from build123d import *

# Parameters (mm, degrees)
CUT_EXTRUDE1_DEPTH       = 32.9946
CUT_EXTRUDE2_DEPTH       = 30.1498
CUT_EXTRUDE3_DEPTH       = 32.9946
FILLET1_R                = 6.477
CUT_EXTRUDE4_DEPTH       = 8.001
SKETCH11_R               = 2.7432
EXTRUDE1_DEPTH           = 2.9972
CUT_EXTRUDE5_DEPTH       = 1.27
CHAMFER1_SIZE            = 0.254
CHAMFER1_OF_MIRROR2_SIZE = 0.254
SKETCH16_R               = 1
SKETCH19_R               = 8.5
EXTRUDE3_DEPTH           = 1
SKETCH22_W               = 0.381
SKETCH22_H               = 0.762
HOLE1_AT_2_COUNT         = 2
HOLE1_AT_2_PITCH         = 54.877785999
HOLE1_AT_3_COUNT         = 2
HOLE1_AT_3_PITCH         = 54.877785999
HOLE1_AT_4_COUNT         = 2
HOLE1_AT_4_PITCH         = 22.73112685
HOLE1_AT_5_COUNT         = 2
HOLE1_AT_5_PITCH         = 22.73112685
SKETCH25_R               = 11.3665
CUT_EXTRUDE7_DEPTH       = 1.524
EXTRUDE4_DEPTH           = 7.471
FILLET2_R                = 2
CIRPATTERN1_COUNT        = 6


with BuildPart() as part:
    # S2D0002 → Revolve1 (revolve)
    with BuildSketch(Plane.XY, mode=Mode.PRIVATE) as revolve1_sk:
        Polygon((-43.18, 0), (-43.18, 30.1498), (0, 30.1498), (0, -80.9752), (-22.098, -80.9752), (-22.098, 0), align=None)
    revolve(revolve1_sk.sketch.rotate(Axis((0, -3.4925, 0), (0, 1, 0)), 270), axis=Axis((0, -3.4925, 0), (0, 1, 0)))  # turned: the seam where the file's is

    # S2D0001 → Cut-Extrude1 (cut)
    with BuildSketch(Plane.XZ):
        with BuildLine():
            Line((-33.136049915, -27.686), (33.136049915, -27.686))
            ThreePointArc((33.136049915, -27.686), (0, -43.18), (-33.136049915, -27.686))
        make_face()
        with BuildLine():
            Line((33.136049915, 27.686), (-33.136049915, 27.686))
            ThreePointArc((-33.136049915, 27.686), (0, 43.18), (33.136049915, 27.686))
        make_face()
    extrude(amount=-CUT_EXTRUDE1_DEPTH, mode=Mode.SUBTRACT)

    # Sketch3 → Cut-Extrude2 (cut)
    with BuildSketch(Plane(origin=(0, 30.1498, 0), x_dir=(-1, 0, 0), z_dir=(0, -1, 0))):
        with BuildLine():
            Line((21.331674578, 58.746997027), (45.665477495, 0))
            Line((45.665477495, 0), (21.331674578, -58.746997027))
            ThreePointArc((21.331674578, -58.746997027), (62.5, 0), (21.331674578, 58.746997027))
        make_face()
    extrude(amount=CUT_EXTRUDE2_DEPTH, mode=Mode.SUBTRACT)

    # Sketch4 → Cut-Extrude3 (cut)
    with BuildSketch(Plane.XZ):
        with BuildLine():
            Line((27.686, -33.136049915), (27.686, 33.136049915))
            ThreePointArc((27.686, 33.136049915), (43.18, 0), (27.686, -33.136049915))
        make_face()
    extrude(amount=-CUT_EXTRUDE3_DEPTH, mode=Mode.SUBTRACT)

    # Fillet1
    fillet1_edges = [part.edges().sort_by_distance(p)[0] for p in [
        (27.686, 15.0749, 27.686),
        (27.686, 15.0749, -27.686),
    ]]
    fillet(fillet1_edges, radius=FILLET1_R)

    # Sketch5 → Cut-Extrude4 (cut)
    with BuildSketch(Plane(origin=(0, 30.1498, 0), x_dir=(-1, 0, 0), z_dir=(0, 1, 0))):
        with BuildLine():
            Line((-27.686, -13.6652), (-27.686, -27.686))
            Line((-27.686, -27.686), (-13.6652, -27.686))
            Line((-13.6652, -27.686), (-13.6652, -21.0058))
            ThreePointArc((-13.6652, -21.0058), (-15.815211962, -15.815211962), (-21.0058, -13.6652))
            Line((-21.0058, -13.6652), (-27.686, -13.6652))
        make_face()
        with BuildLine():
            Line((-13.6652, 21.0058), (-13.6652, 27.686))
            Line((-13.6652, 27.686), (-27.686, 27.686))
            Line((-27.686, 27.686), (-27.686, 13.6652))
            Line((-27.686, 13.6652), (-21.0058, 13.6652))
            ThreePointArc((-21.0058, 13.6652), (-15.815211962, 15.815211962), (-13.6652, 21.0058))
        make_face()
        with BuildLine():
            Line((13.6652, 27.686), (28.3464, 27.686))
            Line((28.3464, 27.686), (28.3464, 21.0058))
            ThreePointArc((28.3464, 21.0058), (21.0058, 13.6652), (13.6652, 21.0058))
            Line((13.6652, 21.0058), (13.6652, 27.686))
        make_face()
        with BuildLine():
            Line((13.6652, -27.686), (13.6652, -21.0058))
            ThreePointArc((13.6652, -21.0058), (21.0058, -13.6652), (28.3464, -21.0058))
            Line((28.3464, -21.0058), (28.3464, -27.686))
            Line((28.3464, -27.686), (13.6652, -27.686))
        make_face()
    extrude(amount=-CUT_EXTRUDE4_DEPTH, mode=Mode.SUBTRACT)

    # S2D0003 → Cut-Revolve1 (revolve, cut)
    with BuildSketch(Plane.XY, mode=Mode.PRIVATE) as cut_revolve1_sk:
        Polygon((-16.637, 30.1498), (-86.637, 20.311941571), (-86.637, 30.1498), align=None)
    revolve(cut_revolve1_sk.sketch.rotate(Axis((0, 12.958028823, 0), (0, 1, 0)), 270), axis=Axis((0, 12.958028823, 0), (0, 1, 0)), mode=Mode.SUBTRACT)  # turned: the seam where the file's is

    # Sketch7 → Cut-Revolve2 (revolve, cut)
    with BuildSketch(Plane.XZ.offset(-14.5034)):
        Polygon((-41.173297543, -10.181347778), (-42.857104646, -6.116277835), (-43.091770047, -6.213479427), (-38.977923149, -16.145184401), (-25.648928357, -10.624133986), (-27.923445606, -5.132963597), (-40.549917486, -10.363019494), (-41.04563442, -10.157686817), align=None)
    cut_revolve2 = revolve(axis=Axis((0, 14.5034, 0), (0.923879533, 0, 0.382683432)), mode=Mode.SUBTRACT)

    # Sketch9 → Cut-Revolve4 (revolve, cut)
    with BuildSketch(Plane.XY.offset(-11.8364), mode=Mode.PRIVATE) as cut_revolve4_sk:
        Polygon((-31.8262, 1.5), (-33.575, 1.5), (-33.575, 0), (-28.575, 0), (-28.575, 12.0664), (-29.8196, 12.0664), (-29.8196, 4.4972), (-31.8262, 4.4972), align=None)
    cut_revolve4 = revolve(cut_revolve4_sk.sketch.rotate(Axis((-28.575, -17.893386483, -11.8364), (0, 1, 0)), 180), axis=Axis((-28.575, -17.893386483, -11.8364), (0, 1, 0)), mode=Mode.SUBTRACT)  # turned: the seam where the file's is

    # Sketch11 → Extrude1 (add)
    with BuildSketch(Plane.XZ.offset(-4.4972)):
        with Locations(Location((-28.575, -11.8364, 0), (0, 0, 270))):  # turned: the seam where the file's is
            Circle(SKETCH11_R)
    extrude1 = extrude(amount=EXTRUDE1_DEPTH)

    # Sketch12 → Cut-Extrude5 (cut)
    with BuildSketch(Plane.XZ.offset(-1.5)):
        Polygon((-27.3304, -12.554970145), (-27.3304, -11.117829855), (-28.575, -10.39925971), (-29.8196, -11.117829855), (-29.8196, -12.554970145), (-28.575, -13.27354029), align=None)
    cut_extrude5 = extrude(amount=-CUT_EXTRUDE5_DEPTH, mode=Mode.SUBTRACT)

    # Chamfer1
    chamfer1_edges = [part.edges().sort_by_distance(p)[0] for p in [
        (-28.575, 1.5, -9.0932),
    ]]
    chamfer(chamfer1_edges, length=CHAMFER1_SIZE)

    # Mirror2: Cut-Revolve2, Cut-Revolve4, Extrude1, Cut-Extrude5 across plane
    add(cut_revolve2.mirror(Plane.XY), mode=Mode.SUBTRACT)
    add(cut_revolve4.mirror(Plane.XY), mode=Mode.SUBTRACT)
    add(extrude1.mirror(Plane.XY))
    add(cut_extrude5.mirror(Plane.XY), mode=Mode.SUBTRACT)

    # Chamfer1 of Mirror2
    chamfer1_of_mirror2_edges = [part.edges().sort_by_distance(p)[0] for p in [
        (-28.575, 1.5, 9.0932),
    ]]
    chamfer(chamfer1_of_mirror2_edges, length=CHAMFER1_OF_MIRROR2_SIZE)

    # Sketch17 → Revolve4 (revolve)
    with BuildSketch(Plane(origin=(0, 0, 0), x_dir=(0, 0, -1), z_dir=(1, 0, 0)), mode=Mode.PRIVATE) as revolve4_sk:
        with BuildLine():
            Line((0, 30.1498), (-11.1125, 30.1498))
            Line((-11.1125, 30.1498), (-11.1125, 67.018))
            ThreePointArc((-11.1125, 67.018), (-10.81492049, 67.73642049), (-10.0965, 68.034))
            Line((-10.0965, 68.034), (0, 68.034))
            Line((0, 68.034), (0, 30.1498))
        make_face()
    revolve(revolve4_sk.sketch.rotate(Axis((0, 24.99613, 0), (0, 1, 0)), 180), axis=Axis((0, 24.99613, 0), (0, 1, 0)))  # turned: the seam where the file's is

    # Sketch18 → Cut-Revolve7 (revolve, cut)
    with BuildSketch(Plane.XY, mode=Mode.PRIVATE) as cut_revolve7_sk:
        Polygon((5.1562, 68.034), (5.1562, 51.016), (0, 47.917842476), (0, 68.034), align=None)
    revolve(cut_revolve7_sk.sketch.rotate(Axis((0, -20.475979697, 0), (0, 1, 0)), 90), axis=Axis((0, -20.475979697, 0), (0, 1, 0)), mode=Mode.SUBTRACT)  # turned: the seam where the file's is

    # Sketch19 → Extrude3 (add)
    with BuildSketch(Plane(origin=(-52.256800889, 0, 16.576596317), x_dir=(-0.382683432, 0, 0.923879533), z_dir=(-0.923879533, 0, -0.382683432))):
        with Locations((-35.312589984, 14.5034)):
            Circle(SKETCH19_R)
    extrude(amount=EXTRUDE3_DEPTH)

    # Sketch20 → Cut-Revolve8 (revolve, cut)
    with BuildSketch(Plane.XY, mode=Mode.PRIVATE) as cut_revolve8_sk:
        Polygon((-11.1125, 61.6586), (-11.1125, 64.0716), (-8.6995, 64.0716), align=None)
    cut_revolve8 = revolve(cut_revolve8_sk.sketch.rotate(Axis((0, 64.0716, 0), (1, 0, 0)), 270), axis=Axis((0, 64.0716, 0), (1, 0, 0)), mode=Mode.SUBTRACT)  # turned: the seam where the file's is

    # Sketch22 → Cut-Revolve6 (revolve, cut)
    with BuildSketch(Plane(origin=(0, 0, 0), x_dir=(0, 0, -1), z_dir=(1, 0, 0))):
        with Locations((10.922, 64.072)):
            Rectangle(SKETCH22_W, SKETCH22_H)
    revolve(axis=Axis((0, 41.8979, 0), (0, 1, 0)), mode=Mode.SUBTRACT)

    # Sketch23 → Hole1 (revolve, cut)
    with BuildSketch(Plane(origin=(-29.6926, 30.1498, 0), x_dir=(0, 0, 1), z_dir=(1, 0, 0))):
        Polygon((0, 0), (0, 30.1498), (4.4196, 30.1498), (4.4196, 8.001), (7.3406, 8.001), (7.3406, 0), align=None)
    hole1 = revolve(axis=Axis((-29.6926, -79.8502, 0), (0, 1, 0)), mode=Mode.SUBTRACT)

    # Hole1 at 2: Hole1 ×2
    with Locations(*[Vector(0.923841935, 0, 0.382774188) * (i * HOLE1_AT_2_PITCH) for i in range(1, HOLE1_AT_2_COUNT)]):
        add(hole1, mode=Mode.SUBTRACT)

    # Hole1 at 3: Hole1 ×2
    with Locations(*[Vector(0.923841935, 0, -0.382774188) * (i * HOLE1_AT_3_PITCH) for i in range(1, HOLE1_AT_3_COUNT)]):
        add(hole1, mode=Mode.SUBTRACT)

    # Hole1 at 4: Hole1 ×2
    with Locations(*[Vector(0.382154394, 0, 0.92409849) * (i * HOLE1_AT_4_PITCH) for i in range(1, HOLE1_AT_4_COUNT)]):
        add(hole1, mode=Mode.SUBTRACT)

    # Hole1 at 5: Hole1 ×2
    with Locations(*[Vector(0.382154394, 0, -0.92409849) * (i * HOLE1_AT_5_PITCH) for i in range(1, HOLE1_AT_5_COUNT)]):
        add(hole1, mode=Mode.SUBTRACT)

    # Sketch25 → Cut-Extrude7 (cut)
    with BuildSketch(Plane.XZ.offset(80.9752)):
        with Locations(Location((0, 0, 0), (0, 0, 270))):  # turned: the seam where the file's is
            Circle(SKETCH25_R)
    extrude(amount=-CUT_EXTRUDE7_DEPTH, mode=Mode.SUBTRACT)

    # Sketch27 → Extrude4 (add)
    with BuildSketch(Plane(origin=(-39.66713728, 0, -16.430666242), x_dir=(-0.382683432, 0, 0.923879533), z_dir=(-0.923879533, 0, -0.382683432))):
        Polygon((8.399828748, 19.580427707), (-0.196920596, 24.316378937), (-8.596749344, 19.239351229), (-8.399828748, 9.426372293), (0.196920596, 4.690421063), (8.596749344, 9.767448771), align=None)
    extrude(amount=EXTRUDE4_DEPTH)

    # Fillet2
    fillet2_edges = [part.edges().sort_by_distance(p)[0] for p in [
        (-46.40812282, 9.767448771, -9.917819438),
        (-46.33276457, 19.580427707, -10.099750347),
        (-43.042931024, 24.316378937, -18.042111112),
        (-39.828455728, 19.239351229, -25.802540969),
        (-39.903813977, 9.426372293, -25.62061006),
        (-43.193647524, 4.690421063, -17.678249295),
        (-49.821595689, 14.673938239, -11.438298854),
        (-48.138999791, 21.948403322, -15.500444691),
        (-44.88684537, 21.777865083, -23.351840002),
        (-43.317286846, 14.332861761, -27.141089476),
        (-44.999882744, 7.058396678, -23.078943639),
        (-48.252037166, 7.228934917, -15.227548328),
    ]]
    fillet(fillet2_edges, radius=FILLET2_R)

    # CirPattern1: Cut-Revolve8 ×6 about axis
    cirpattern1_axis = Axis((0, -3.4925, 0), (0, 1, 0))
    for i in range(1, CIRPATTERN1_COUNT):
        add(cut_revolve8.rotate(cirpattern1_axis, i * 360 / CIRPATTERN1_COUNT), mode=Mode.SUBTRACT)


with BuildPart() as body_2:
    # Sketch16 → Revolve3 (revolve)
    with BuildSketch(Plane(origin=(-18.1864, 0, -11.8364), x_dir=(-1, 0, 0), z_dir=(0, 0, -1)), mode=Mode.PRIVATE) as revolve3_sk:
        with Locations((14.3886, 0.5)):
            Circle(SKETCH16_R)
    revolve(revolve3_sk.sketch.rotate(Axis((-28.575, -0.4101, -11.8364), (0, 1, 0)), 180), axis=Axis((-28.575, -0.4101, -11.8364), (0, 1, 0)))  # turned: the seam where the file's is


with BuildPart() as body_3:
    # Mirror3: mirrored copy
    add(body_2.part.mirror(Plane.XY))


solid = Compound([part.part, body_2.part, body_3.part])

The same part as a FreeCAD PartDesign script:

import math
import FreeCAD as App
import Part
import Sketcher
Q = App.Units.Quantity


def edges_at(feature, points):
    """Names of the edges that pass closest to the given points."""
    edges = feature.Shape.Edges
    near = lambda p: min(range(len(edges)), key=lambda i: edges[i].distToShape(Part.Vertex(*p))[0])
    return sorted({f"Edge{near(p) + 1}" for p in points})

doc = App.newDocument("Part")
body = doc.addObject("PartDesign::Body", "Body")

sketch1 = body.newObject("Sketcher::SketchObject", "Sketch")
sketch1.AttachmentSupport = (doc.getObject("XY_Plane"), [""])
sketch1.MapMode = "FlatFace"
sketch1.addGeometry([
    Part.LineSegment(App.Vector(-43, 30, 0), App.Vector(-43, 0, 0)),
    Part.LineSegment(App.Vector(-43, 0, 0), App.Vector(-22, 0, 0)),
    Part.LineSegment(App.Vector(-22, 0, 0), App.Vector(-22, -81, 0)),
    Part.LineSegment(App.Vector(-22, -81, 0), App.Vector(0, -81, 0)),
    Part.LineSegment(App.Vector(0, -81, 0), App.Vector(0, 30, 0)),
    Part.LineSegment(App.Vector(0, 30, 0), App.Vector(-43, 30, 0)),
], False)
sketch1.addConstraint([
    Sketcher.Constraint("Coincident", 0, 2, 1, 1),
    Sketcher.Constraint("Coincident", 1, 2, 2, 1),
    Sketcher.Constraint("Coincident", 2, 2, 3, 1),
    Sketcher.Constraint("Coincident", 3, 2, 4, 1),
    Sketcher.Constraint("Coincident", 4, 2, 5, 1),
    Sketcher.Constraint("Coincident", 5, 2, 0, 1),
    Sketcher.Constraint("Vertical", 0),
    Sketcher.Constraint("Horizontal", 1),
    Sketcher.Constraint("Vertical", 2),
    Sketcher.Constraint("Horizontal", 3),
    Sketcher.Constraint("Vertical", 4),
    Sketcher.Constraint("Horizontal", 5),
    Sketcher.Constraint("PointOnObject", 0, 2, -1),
    Sketcher.Constraint("PointOnObject", 3, 2, -2),
    Sketcher.Constraint("DistanceX", 5, 2, 5, 1, Q("1.7 in")),
    Sketcher.Constraint("DistanceX", 1, 1, 1, 2, Q("0.83 in")),
    Sketcher.Constraint("DistanceY", 0, 2, 0, 1, Q("1.187 in")),
    Sketcher.Constraint("DistanceY", 2, 2, 2, 1, Q("3.188 in")),
])
revolution = body.newObject("PartDesign::Revolution", "Revolution")
revolution.Profile = sketch1
revolution.ReferenceAxis = (sketch1, ["V_Axis"])
revolution.Angle = 360

sketch2 = body.newObject("Sketcher::SketchObject", "Sketch001")
sketch2.AttachmentSupport = (doc.getObject("XZ_Plane"), [""])
sketch2.MapMode = "FlatFace"
sketch2.addGeometry([
    Part.LineSegment(App.Vector(33, -28, 0), App.Vector(-33, -28, 0)),
    Part.ArcOfCircle(Part.Circle(App.Vector(0, 0, 0), App.Vector(0, 0, 1), 43), math.radians(-140), math.radians(-40)),
    Part.LineSegment(App.Vector(-33, 28, 0), App.Vector(33, 28, 0)),
    Part.ArcOfCircle(Part.Circle(App.Vector(0, 0, 0), App.Vector(0, 0, 1), 43), math.radians(40), math.radians(140)),
], False)
sketch2.addConstraint([
    Sketcher.Constraint("Coincident", 0, 1, 1, 2),
    Sketcher.Constraint("Coincident", 1, 1, 0, 2),
    Sketcher.Constraint("Coincident", 2, 1, 3, 2),
    Sketcher.Constraint("Coincident", 3, 1, 2, 2),
    Sketcher.Constraint("Horizontal", 0),
    Sketcher.Constraint("Horizontal", 2),
    Sketcher.Constraint("Coincident", 1, 3, -1, 1),
    Sketcher.Constraint("Coincident", 3, 3, -1, 1),
    Sketcher.Constraint("Equal", 1, 3),
    Sketcher.Constraint("Vertical", 1, 1, 2, 1),
    Sketcher.Constraint("Radius", 1, Q("1.7 in")),
    Sketcher.Constraint("DistanceY", 0, 1, -1, 1, Q("1.09 in")),
])
pocket1 = body.newObject("PartDesign::Pocket", "Pocket")
pocket1.Profile = sketch2
pocket1.Length = Q("1.299 in")

sketch3 = body.newObject("Sketcher::SketchObject", "Sketch002")
sketch3.AttachmentSupport = (doc.getObject("XZ_Plane"), [""])
sketch3.MapMode = "FlatFace"
sketch3.AttachmentOffset = App.Placement(App.Vector(0, 0, -1.187 * 25.4), App.Rotation())
sketch3.addGeometry([
    Part.LineSegment(App.Vector(-21, -59, 0), App.Vector(-46, 0, 0)),
    Part.LineSegment(App.Vector(-46, 0, 0), App.Vector(-21, 59, 0)),
    Part.ArcOfCircle(Part.Circle(App.Vector(0, 0, 0), App.Vector(0, 0, 1), 62), math.radians(110), math.radians(250)),
], False)
sketch3.addConstraint([
    Sketcher.Constraint("Coincident", 0, 2, 1, 1),
    Sketcher.Constraint("Coincident", 1, 2, 2, 1),
    Sketcher.Constraint("Coincident", 2, 2, 0, 1),
    Sketcher.Constraint("Coincident", 2, 3, -1, 1),
    Sketcher.Constraint("PointOnObject", 0, 2, -1),
    Sketcher.Constraint("Vertical", 1, 2, 2, 2),
    Sketcher.Constraint("Angle", 0, Q("112.5 deg")),
    Sketcher.Constraint("Radius", 2, Q("62.5 mm")),
    Sketcher.Constraint("Distance", 0, Q("63.587291 mm")),
])
pocket2 = body.newObject("PartDesign::Pocket", "Pocket001")
pocket2.Profile = sketch3
pocket2.Length = Q("1.187 in")
pocket2.Reversed = True

sketch4 = body.newObject("Sketcher::SketchObject", "Sketch003")
sketch4.AttachmentSupport = (doc.getObject("XZ_Plane"), [""])
sketch4.MapMode = "FlatFace"
sketch4.addGeometry([
    Part.LineSegment(App.Vector(28, 33, 0), App.Vector(28, -33, 0)),
    Part.ArcOfCircle(Part.Circle(App.Vector(0, 0, 0), App.Vector(0, 0, 1), 43), math.radians(-50), math.radians(50)),
], False)
sketch4.addConstraint([
    Sketcher.Constraint("Coincident", 0, 1, 1, 2),
    Sketcher.Constraint("Coincident", 1, 1, 0, 2),
    Sketcher.Constraint("Vertical", 0),
    Sketcher.Constraint("Coincident", 1, 3, -1, 1),
    Sketcher.Constraint("Radius", 1, Q("1.7 in")),
    Sketcher.Constraint("DistanceX", -1, 1, 0, 1, Q("1.09 in")),
])
pocket3 = body.newObject("PartDesign::Pocket", "Pocket002")
pocket3.Profile = sketch4
pocket3.Length = Q("1.299 in")
doc.recompute()

fillet = body.newObject("PartDesign::Fillet", "Fillet")
fillet.Base = (pocket3, edges_at(pocket3, [(27.686, 15.075, 27.686), (27.686, 15.075, -27.686)]))
fillet.Radius = Q("0.255 in")

sketch5 = body.newObject("Sketcher::SketchObject", "Sketch004")
sketch5.AttachmentSupport = (doc.getObject("XZ_Plane"), [""])
sketch5.MapMode = "FlatFace"
sketch5.AttachmentOffset = App.Placement(App.Vector(0, 0, -1.187 * 25.4), App.Rotation())
sketch5.addGeometry([
    Part.LineSegment(App.Vector(28, -14, 0), App.Vector(28, -28, 0)),
    Part.LineSegment(App.Vector(28, -28, 0), App.Vector(14, -28, 0)),
    Part.LineSegment(App.Vector(14, -28, 0), App.Vector(14, -21, 0)),
    Part.ArcOfCircle(Part.Circle(App.Vector(21, -21, 0), App.Vector(0, 0, 1), 7), math.radians(90), math.radians(180)),
    Part.LineSegment(App.Vector(21, -14, 0), App.Vector(28, -14, 0)),
    Part.LineSegment(App.Vector(14, 21, 0), App.Vector(14, 28, 0)),
    Part.LineSegment(App.Vector(14, 28, 0), App.Vector(28, 28, 0)),
    Part.LineSegment(App.Vector(28, 28, 0), App.Vector(28, 14, 0)),
    Part.LineSegment(App.Vector(28, 14, 0), App.Vector(21, 14, 0)),
    Part.ArcOfCircle(Part.Circle(App.Vector(21, 21, 0), App.Vector(0, 0, 1), 7), math.radians(180), math.radians(270)),
    Part.LineSegment(App.Vector(-28, 28, 0), App.Vector(-14, 28, 0)),
    Part.LineSegment(App.Vector(-14, 28, 0), App.Vector(-14, 21, 0)),
    Part.ArcOfCircle(Part.Circle(App.Vector(-21, 21, 0), App.Vector(0, 0, 1), 7), math.radians(180), math.radians(360)),
    Part.LineSegment(App.Vector(-28, 21, 0), App.Vector(-28, 28, 0)),
    Part.LineSegment(App.Vector(-14, -21, 0), App.Vector(-14, -28, 0)),
    Part.LineSegment(App.Vector(-14, -28, 0), App.Vector(-28, -28, 0)),
    Part.LineSegment(App.Vector(-28, -28, 0), App.Vector(-28, -21, 0)),
    Part.ArcOfCircle(Part.Circle(App.Vector(-21, -21, 0), App.Vector(0, 0, 1), 7), math.radians(0), math.radians(180)),
], False)
sketch5.addConstraint([
    Sketcher.Constraint("Coincident", 0, 2, 1, 1),
    Sketcher.Constraint("Coincident", 1, 2, 2, 1),
    Sketcher.Constraint("Tangent", 2, 2, 3, 2),
    Sketcher.Constraint("Tangent", 3, 1, 4, 1),
    Sketcher.Constraint("Coincident", 4, 2, 0, 1),
    Sketcher.Constraint("Coincident", 5, 2, 6, 1),
    Sketcher.Constraint("Coincident", 6, 2, 7, 1),
    Sketcher.Constraint("Coincident", 7, 2, 8, 1),
    Sketcher.Constraint("Tangent", 8, 2, 9, 2),
    Sketcher.Constraint("Tangent", 9, 1, 5, 1),
    Sketcher.Constraint("Coincident", 10, 2, 11, 1),
    Sketcher.Constraint("Tangent", 11, 2, 12, 2),
    Sketcher.Constraint("Tangent", 12, 1, 13, 1),
    Sketcher.Constraint("Coincident", 13, 2, 10, 1),
    Sketcher.Constraint("Coincident", 14, 2, 15, 1),
    Sketcher.Constraint("Coincident", 15, 2, 16, 1),
    Sketcher.Constraint("Tangent", 16, 2, 17, 2),
    Sketcher.Constraint("Tangent", 17, 1, 14, 1),
    Sketcher.Constraint("Vertical", 0),
    Sketcher.Constraint("Horizontal", 1),
    Sketcher.Constraint("Vertical", 2),
    Sketcher.Constraint("Horizontal", 4),
    Sketcher.Constraint("Vertical", 5),
    Sketcher.Constraint("Horizontal", 6),
    Sketcher.Constraint("Vertical", 7),
    Sketcher.Constraint("Horizontal", 8),
    Sketcher.Constraint("Horizontal", 10),
    Sketcher.Constraint("Vertical", 11),
    Sketcher.Constraint("Vertical", 13),
    Sketcher.Constraint("Vertical", 14),
    Sketcher.Constraint("Horizontal", 15),
    Sketcher.Constraint("Vertical", 16),
    Sketcher.Constraint("Equal", 3, 9),
    Sketcher.Constraint("Equal", 9, 12),
    Sketcher.Constraint("Equal", 12, 17),
    Sketcher.Constraint("Symmetric", 3, 3, 12, 3, -1, 1),
    Sketcher.Constraint("Symmetric", 9, 3, 17, 3, -1, 1),
    Sketcher.Constraint("Symmetric", 9, 3, 12, 3, -2),
    Sketcher.Constraint("Symmetric", 0, 2, 6, 2, -1),
    Sketcher.Constraint("Horizontal", 6, 2, 10, 2),
    Sketcher.Constraint("Horizontal", 1, 2, 14, 2),
    Sketcher.Constraint("Equal", 6, 0),
    Sketcher.Constraint("Radius", 3, Q("0.289 in")),
    Sketcher.Constraint("DistanceX", 1, 2, 1, 1, Q("0.552 in")),
    Sketcher.Constraint("DistanceX", -1, 1, 0, 2, Q("1.09 in")),
    Sketcher.Constraint("DistanceY", 0, 2, -1, 1, Q("1.09 in")),
])
pocket4 = body.newObject("PartDesign::Pocket", "Pocket003")
pocket4.Profile = sketch5
pocket4.Length = Q("0.315 in")
pocket4.Reversed = True

sketch6 = body.newObject("Sketcher::SketchObject", "Sketch005")
sketch6.AttachmentSupport = (doc.getObject("XY_Plane"), [""])
sketch6.MapMode = "FlatFace"
sketch6.addGeometry([
    Part.LineSegment(App.Vector(-87, 20, 0), App.Vector(-17, 30, 0)),
    Part.LineSegment(App.Vector(-17, 30, 0), App.Vector(-87, 30, 0)),
    Part.LineSegment(App.Vector(-87, 30, 0), App.Vector(-87, 20, 0)),
], False)
sketch6.addConstraint([
    Sketcher.Constraint("Coincident", 0, 2, 1, 1),
    Sketcher.Constraint("Coincident", 1, 2, 2, 1),
    Sketcher.Constraint("Coincident", 2, 2, 0, 1),
    Sketcher.Constraint("Horizontal", 1),
    Sketcher.Constraint("Vertical", 2),
    Sketcher.Constraint("Angle", 0, Q("8 deg")),
    Sketcher.Constraint("DistanceX", 0, 2, -1, 1, Q("0.655 in")),
    Sketcher.Constraint("DistanceY", -1, 1, 0, 2, Q("1.187 in")),
    Sketcher.Constraint("DistanceX", 1, 2, 1, 1, Q("70 mm")),
])
groove = body.newObject("PartDesign::Groove", "Groove")
groove.Profile = sketch6
groove.ReferenceAxis = (sketch6, ["V_Axis"])
groove.Angle = 360

sketch7 = body.newObject("Sketcher::SketchObject", "Sketch006")
sketch7.AttachmentSupport = (doc.getObject("XZ_Plane"), [""])
sketch7.MapMode = "FlatFace"
sketch7.AttachmentOffset = App.Placement(App.Vector(0, 0, -0.571 * 25.4), App.Rotation())
sketch7.addGeometry([
    Part.LineSegment(App.Vector(-41.17, -10.18, 0), App.Vector(-42.86, -6.12, 0)),
    Part.LineSegment(App.Vector(-42.86, -6.12, 0), App.Vector(-43.09, -6.21, 0)),
    Part.LineSegment(App.Vector(-43.09, -6.21, 0), App.Vector(-38.98, -16.15, 0)),
    Part.LineSegment(App.Vector(-38.98, -16.15, 0), App.Vector(-25.65, -10.62, 0)),
    Part.LineSegment(App.Vector(-25.65, -10.62, 0), App.Vector(-27.92, -5.13, 0)),
    Part.LineSegment(App.Vector(-27.92, -5.13, 0), App.Vector(-40.55, -10.36, 0)),
    Part.LineSegment(App.Vector(-40.55, -10.36, 0), App.Vector(-41.05, -10.16, 0)),
    Part.LineSegment(App.Vector(-41.05, -10.16, 0), App.Vector(-41.17, -10.18, 0)),
], False)
sketch7.addGeometry(Part.LineSegment(App.Vector(-38.98, -16.15, 0), App.Vector(-25.65, -10.62, 0)), True)
sketch7.addConstraint([
    Sketcher.Constraint("Coincident", 0, 2, 1, 1),
    Sketcher.Constraint("Coincident", 1, 2, 2, 1),
    Sketcher.Constraint("Coincident", 2, 2, 3, 1),
    Sketcher.Constraint("Coincident", 3, 2, 4, 1),
    Sketcher.Constraint("Coincident", 4, 2, 5, 1),
    Sketcher.Constraint("Coincident", 5, 2, 6, 1),
    Sketcher.Constraint("Coincident", 6, 2, 7, 1),
    Sketcher.Constraint("Coincident", 7, 2, 0, 1),
    Sketcher.Constraint("Coincident", 8, 1, 2, 2),
    Sketcher.Constraint("Coincident", 8, 2, 3, 2),
    Sketcher.Constraint("Perpendicular", 0, 1),
    Sketcher.Constraint("Perpendicular", 1, 2),
    Sketcher.Constraint("Perpendicular", 2, 3),
    Sketcher.Constraint("Perpendicular", 3, 4),
    Sketcher.Constraint("Perpendicular", 4, 5),
    Sketcher.Constraint("Angle", 0, Q("112.5 deg")),
    Sketcher.Constraint("Angle", 6, Q("157.5 deg")),
    Sketcher.Constraint("Angle", 7, Q("-169.5 deg")),
    Sketcher.Constraint("Distance", 1, Q("0.01 in")),
    Sketcher.Constraint("Distance", 3, Q("0.568 in")),
    Sketcher.Constraint("Distance", 4, Q("0.234 in")),
    Sketcher.Constraint("Distance", 0, Q("4.4 mm")),
    Sketcher.Constraint("Distance", 2, Q("10.75 mm")),
    Sketcher.Constraint("Distance", 6, Q("0.53656 mm")),
    Sketcher.Constraint("DistanceX", 1, 2, -1, 1, Q("43.09177 mm")),
    Sketcher.Constraint("DistanceY", 1, 2, -1, 1, Q("6.213479 mm")),
])
groove2 = body.newObject("PartDesign::Groove", "Groove001")
groove2.Profile = sketch7
groove2.ReferenceAxis = (sketch7, ["Axis0"])
groove2.Angle = 360

sketch8 = body.newObject("Sketcher::SketchObject", "Sketch007")
sketch8.AttachmentSupport = (doc.getObject("XY_Plane"), [""])
sketch8.MapMode = "FlatFace"
sketch8.AttachmentOffset = App.Placement(App.Vector(0, 0, -0.466 * 25.4), App.Rotation())
sketch8.addGeometry([
    Part.LineSegment(App.Vector(-31.8, 1.5, 0), App.Vector(-33.6, 1.5, 0)),
    Part.LineSegment(App.Vector(-33.6, 1.5, 0), App.Vector(-33.6, 0, 0)),
    Part.LineSegment(App.Vector(-33.6, 0, 0), App.Vector(-28.6, 0, 0)),
    Part.LineSegment(App.Vector(-28.6, 0, 0), App.Vector(-28.6, 12.1, 0)),
    Part.LineSegment(App.Vector(-28.6, 12.1, 0), App.Vector(-29.8, 12.1, 0)),
    Part.LineSegment(App.Vector(-29.8, 12.1, 0), App.Vector(-29.8, 4.5, 0)),
    Part.LineSegment(App.Vector(-29.8, 4.5, 0), App.Vector(-31.8, 4.5, 0)),
    Part.LineSegment(App.Vector(-31.8, 4.5, 0), App.Vector(-31.8, 1.5, 0)),
], False)
sketch8.addGeometry(Part.LineSegment(App.Vector(-28.6, 0, 0), App.Vector(-28.6, 12.1, 0)), True)
sketch8.addConstraint([
    Sketcher.Constraint("Coincident", 0, 2, 1, 1),
    Sketcher.Constraint("Coincident", 1, 2, 2, 1),
    Sketcher.Constraint("Coincident", 2, 2, 3, 1),
    Sketcher.Constraint("Coincident", 3, 2, 4, 1),
    Sketcher.Constraint("Coincident", 4, 2, 5, 1),
    Sketcher.Constraint("Coincident", 5, 2, 6, 1),
    Sketcher.Constraint("Coincident", 6, 2, 7, 1),
    Sketcher.Constraint("Coincident", 7, 2, 0, 1),
    Sketcher.Constraint("Horizontal", 0),
    Sketcher.Constraint("Vertical", 1),
    Sketcher.Constraint("Horizontal", 2),
    Sketcher.Constraint("Vertical", 3),
    Sketcher.Constraint("Horizontal", 4),
    Sketcher.Constraint("Vertical", 5),
    Sketcher.Constraint("Horizontal", 6),
    Sketcher.Constraint("Vertical", 7),
    Sketcher.Constraint("Vertical", 8),
    Sketcher.Constraint("Coincident", 8, 1, 2, 2),
    Sketcher.Constraint("PointOnObject", 1, 2, -1),
    Sketcher.Constraint("Horizontal", 4, 2, 8, 2),
    Sketcher.Constraint("DistanceX", 4, 2, 4, 1, Q("0.049 in")),
    Sketcher.Constraint("DistanceX", 6, 2, 6, 1, Q("0.079 in")),
    Sketcher.Constraint("DistanceY", 5, 2, 5, 1, Q("0.298 in")),
    Sketcher.Constraint("DistanceY", 7, 2, 7, 1, Q("0.118 in")),
    Sketcher.Constraint("DistanceX", 2, 2, -1, 1, Q("1.125 in")),
    Sketcher.Constraint("DistanceX", 0, 2, 0, 1, Q("1.7488 mm")),
    Sketcher.Constraint("DistanceY", 1, 2, 1, 1, Q("1.5 mm")),
])
groove3 = body.newObject("PartDesign::Groove", "Groove002")
groove3.Profile = sketch8
groove3.ReferenceAxis = (sketch8, ["Axis0"])
groove3.Angle = 360

sketch9 = body.newObject("Sketcher::SketchObject", "Sketch008")
sketch9.AttachmentSupport = (doc.getObject("XZ_Plane"), [""])
sketch9.MapMode = "FlatFace"
sketch9.AttachmentOffset = App.Placement(App.Vector(0, 0, -4.4972), App.Rotation())
sketch9.addGeometry(Part.Circle(App.Vector(-28.6, -11.8, 0), App.Vector(0, 0, 1), 2.7), False)
sketch9.addConstraint([
    Sketcher.Constraint("Diameter", 0, Q("0.216 in")),
    Sketcher.Constraint("DistanceX", 0, 3, -1, 1, Q("1.125 in")),
    Sketcher.Constraint("DistanceY", 0, 3, -1, 1, Q("0.466 in")),
])
pad1 = body.newObject("PartDesign::Pad", "Pad")
pad1.Profile = sketch9
pad1.Length = Q("0.118 in")

sketch10 = body.newObject("Sketcher::SketchObject", "Sketch009")
sketch10.AttachmentSupport = (doc.getObject("XZ_Plane"), [""])
sketch10.MapMode = "FlatFace"
sketch10.AttachmentOffset = App.Placement(App.Vector(0, 0, -1.5), App.Rotation())
sketch10.addGeometry([
    Part.LineSegment(App.Vector(-27.3, -12.6, 0), App.Vector(-27.3, -11.1, 0)),
    Part.LineSegment(App.Vector(-27.3, -11.1, 0), App.Vector(-28.6, -10.4, 0)),
    Part.LineSegment(App.Vector(-28.6, -10.4, 0), App.Vector(-29.8, -11.1, 0)),
    Part.LineSegment(App.Vector(-29.8, -11.1, 0), App.Vector(-29.8, -12.6, 0)),
    Part.LineSegment(App.Vector(-29.8, -12.6, 0), App.Vector(-28.6, -13.3, 0)),
    Part.LineSegment(App.Vector(-28.6, -13.3, 0), App.Vector(-27.3, -12.6, 0)),
], False)
sketch10.addConstraint([
    Sketcher.Constraint("Coincident", 0, 2, 1, 1),
    Sketcher.Constraint("Coincident", 1, 2, 2, 1),
    Sketcher.Constraint("Coincident", 2, 2, 3, 1),
    Sketcher.Constraint("Coincident", 3, 2, 4, 1),
    Sketcher.Constraint("Coincident", 4, 2, 5, 1),
    Sketcher.Constraint("Coincident", 5, 2, 0, 1),
    Sketcher.Constraint("Vertical", 0),
    Sketcher.Constraint("Vertical", 3),
    Sketcher.Constraint("Parallel", 1, 4),
    Sketcher.Constraint("Parallel", 2, 5),
    Sketcher.Constraint("Horizontal", 0, 2, 2, 2),
    Sketcher.Constraint("Horizontal", 3, 2, 5, 2),
    Sketcher.Constraint("Vertical", 1, 2, 4, 2),
    Sketcher.Constraint("Angle", 1, Q("150 deg")),
    Sketcher.Constraint("DistanceX", 0, 2, -1, 1, Q("1.076 in")),
    Sketcher.Constraint("DistanceX", 1, 2, -1, 1, Q("1.125 in")),
    Sketcher.Constraint("DistanceY", 0, 1, 0, 2, Q("1.43714 mm")),
    Sketcher.Constraint("DistanceY", 0, 2, -1, 1, Q("11.11783 mm")),
])
pocket5 = body.newObject("PartDesign::Pocket", "Pocket004")
pocket5.Profile = sketch10
pocket5.Length = Q("0.05 in")
doc.recompute()

chamfer = body.newObject("PartDesign::Chamfer", "Chamfer")
chamfer.Base = (pocket5, edges_at(pocket5, [(-28.575, 1.5, -9.093)]))
chamfer.Size = Q("0.01 in")
doc.recompute()

mirrored = body.newObject("PartDesign::Mirrored", "Mirrored")
mirrored.Originals = [groove2, groove3, pad1, pocket5]
mirrored.MirrorPlane = (doc.getObject("XY_Plane"), [""])
body.Tip = mirrored
doc.recompute()

chamfer2 = body.newObject("PartDesign::Chamfer", "Chamfer001")
chamfer2.Base = (mirrored, edges_at(mirrored, [(-28.575, 1.5, 9.093)]))
chamfer2.Size = Q("0.01 in")

sketch11 = body.newObject("Sketcher::SketchObject", "Sketch010")
sketch11.AttachmentSupport = (doc.getObject("YZ_Plane"), [""])
sketch11.MapMode = "FlatFace"
sketch11.addGeometry([
    Part.LineSegment(App.Vector(30.1, 11.1, 0), App.Vector(30.1, 0, 0)),
    Part.LineSegment(App.Vector(30.1, 0, 0), App.Vector(68, 0, 0)),
    Part.LineSegment(App.Vector(68, 0, 0), App.Vector(68, 10.1, 0)),
    Part.ArcOfCircle(Part.Circle(App.Vector(67, 10.1, 0), App.Vector(0, 0, 1), 1), math.radians(0), math.radians(90)),
    Part.LineSegment(App.Vector(67, 11.1, 0), App.Vector(30.1, 11.1, 0)),
], False)
sketch11.addConstraint([
    Sketcher.Constraint("Coincident", 0, 2, 1, 1),
    Sketcher.Constraint("Coincident", 1, 2, 2, 1),
    Sketcher.Constraint("Tangent", 2, 2, 3, 1),
    Sketcher.Constraint("Tangent", 3, 2, 4, 1),
    Sketcher.Constraint("Coincident", 4, 2, 0, 1),
    Sketcher.Constraint("Vertical", 0),
    Sketcher.Constraint("Horizontal", 1),
    Sketcher.Constraint("Vertical", 2),
    Sketcher.Constraint("Horizontal", 4),
    Sketcher.Constraint("PointOnObject", 0, 2, -1),
    Sketcher.Constraint("Radius", 3, Q("0.04 in")),
    Sketcher.Constraint("DistanceY", 0, 2, 0, 1, Q("0.4375 in")),
    Sketcher.Constraint("DistanceX", -1, 1, 0, 2, Q("1.187 in")),
    Sketcher.Constraint("DistanceX", 1, 1, 1, 2, Q("37.8842 mm")),
])
revolution2 = body.newObject("PartDesign::Revolution", "Revolution001")
revolution2.Profile = sketch11
revolution2.ReferenceAxis = (sketch11, ["H_Axis"])
revolution2.Angle = 360

sketch12 = body.newObject("Sketcher::SketchObject", "Sketch011")
sketch12.AttachmentSupport = (doc.getObject("XY_Plane"), [""])
sketch12.MapMode = "FlatFace"
sketch12.addGeometry([
    Part.LineSegment(App.Vector(5, 51, 0), App.Vector(5, 68, 0)),
    Part.LineSegment(App.Vector(5, 68, 0), App.Vector(0, 68, 0)),
    Part.LineSegment(App.Vector(0, 68, 0), App.Vector(0, 48, 0)),
    Part.LineSegment(App.Vector(0, 48, 0), App.Vector(5, 51, 0)),
], False)
sketch12.addConstraint([
    Sketcher.Constraint("Coincident", 0, 2, 1, 1),
    Sketcher.Constraint("Coincident", 1, 2, 2, 1),
    Sketcher.Constraint("Coincident", 2, 2, 3, 1),
    Sketcher.Constraint("Coincident", 3, 2, 0, 1),
    Sketcher.Constraint("Vertical", 0),
    Sketcher.Constraint("Horizontal", 1),
    Sketcher.Constraint("Vertical", 2),
    Sketcher.Constraint("PointOnObject", 1, 2, -2),
    Sketcher.Constraint("Angle", 3, Q("31 deg")),
    Sketcher.Constraint("DistanceY", 0, 1, 0, 2, Q("0.67 in")),
    Sketcher.Constraint("DistanceX", 1, 2, 1, 1, Q("0.203 in")),
    Sketcher.Constraint("DistanceY", -1, 1, 0, 2, Q("68.034 mm")),
])
groove4 = body.newObject("PartDesign::Groove", "Groove003")
groove4.Profile = sketch12
groove4.ReferenceAxis = (sketch12, ["V_Axis"])
groove4.Angle = 360

sketch13 = body.newObject("Sketcher::SketchObject", "Sketch012")
sketch13.Placement = App.Placement(App.Vector(-52.256801, 0, 16.576596), App.Rotation(App.Vector(-0.382683432, 0, 0.923879533), App.Vector(0, 1.000000001, 0), App.Vector(-0.923879533, 0, -0.382683432), "ZXY"))
sketch13.addGeometry(Part.Circle(App.Vector(-35, 15, 0), App.Vector(0, 0, 1), 8), False)
sketch13.addConstraint([
    Sketcher.Constraint("Diameter", 0, Q("17 mm")),
    Sketcher.Constraint("DistanceY", -1, 1, 0, 3, Q("0.571 in")),
    Sketcher.Constraint("DistanceX", 0, 3, -1, 1, Q("35.31259 mm")),
])
pad2 = body.newObject("PartDesign::Pad", "Pad001")
pad2.Profile = sketch13
pad2.Length = 1

sketch14 = body.newObject("Sketcher::SketchObject", "Sketch013")
sketch14.AttachmentSupport = (doc.getObject("XY_Plane"), [""])
sketch14.MapMode = "FlatFace"
sketch14.addGeometry([
    Part.LineSegment(App.Vector(-11.1, 64.1, 0), App.Vector(-11.1, 61.7, 0)),
    Part.LineSegment(App.Vector(-11.1, 61.7, 0), App.Vector(-8.7, 64.1, 0)),
    Part.LineSegment(App.Vector(-8.7, 64.1, 0), App.Vector(-11.1, 64.1, 0)),
], False)
sketch14.addGeometry(Part.LineSegment(App.Vector(-11.1, 64.1, 0), App.Vector(-8.7, 64.1, 0)), True)
sketch14.addConstraint([
    Sketcher.Constraint("Coincident", 0, 2, 1, 1),
    Sketcher.Constraint("Coincident", 1, 2, 2, 1),
    Sketcher.Constraint("Coincident", 2, 2, 0, 1),
    Sketcher.Constraint("Vertical", 0),
    Sketcher.Constraint("Horizontal", 2),
    Sketcher.Constraint("Horizontal", 3),
    Sketcher.Constraint("Coincident", 3, 1, 2, 2),
    Sketcher.Constraint("Equal", 2, 3),
    Sketcher.Constraint("Equal", 3, 0),
    Sketcher.Constraint("DistanceX", 2, 2, 2, 1, Q("0.095 in")),
    Sketcher.Constraint("DistanceX", 0, 2, -1, 1, Q("0.4375 in")),
    Sketcher.Constraint("DistanceY", -1, 1, 0, 2, Q("61.6586 mm")),
])
groove5 = body.newObject("PartDesign::Groove", "Groove004")
groove5.Profile = sketch14
groove5.ReferenceAxis = (sketch14, ["Axis0"])
groove5.Angle = 360

sketch15 = body.newObject("Sketcher::SketchObject", "Sketch014")
sketch15.AttachmentSupport = (doc.getObject("YZ_Plane"), [""])
sketch15.MapMode = "FlatFace"
sketch15.addGeometry([
    Part.LineSegment(App.Vector(64.45, -10.73, 0), App.Vector(63.69, -10.73, 0)),
    Part.LineSegment(App.Vector(63.69, -10.73, 0), App.Vector(63.69, -11.11, 0)),
    Part.LineSegment(App.Vector(63.69, -11.11, 0), App.Vector(64.45, -11.11, 0)),
    Part.LineSegment(App.Vector(64.45, -11.11, 0), App.Vector(64.45, -10.73, 0)),
], False)
sketch15.addConstraint([
    Sketcher.Constraint("Coincident", 0, 2, 1, 1),
    Sketcher.Constraint("Coincident", 1, 2, 2, 1),
    Sketcher.Constraint("Coincident", 2, 2, 3, 1),
    Sketcher.Constraint("Coincident", 3, 2, 0, 1),
    Sketcher.Constraint("Horizontal", 0),
    Sketcher.Constraint("Vertical", 1),
    Sketcher.Constraint("Horizontal", 2),
    Sketcher.Constraint("Vertical", 3),
    Sketcher.Constraint("DistanceX", 0, 2, 0, 1, Q("0.03 in")),
    Sketcher.Constraint("DistanceY", 1, 2, 1, 1, Q("0.015 in")),
    Sketcher.Constraint("DistanceY", 1, 2, -1, 1, Q("0.4375 in")),
    Sketcher.Constraint("DistanceX", -1, 1, 0, 2, Q("63.691 mm")),
])
groove6 = body.newObject("PartDesign::Groove", "Groove005")
groove6.Profile = sketch15
groove6.ReferenceAxis = (sketch15, ["H_Axis"])
groove6.Angle = 360

sketch16 = body.newObject("Sketcher::SketchObject", "Sketch015")
sketch16.AttachmentSupport = (doc.getObject("YZ_Plane"), [""])
sketch16.MapMode = "FlatFace"
sketch16.AttachmentOffset = App.Placement(App.Vector(0, 0, -1.169 * 25.4), App.Rotation())
sketch16.addGeometry([
    Part.LineSegment(App.Vector(0, 0, 0), App.Vector(30.1, 0, 0)),
    Part.LineSegment(App.Vector(30.1, 0, 0), App.Vector(30.1, 7.3, 0)),
    Part.LineSegment(App.Vector(30.1, 7.3, 0), App.Vector(22.1, 7.3, 0)),
    Part.LineSegment(App.Vector(22.1, 7.3, 0), App.Vector(22.1, 4.4, 0)),
    Part.LineSegment(App.Vector(22.1, 4.4, 0), App.Vector(0, 4.4, 0)),
    Part.LineSegment(App.Vector(0, 4.4, 0), App.Vector(0, 0, 0)),
], False)
sketch16.addConstraint([
    Sketcher.Constraint("Coincident", 0, 2, 1, 1),
    Sketcher.Constraint("Coincident", 1, 2, 2, 1),
    Sketcher.Constraint("Coincident", 2, 2, 3, 1),
    Sketcher.Constraint("Coincident", 3, 2, 4, 1),
    Sketcher.Constraint("Coincident", 4, 2, 5, 1),
    Sketcher.Constraint("Coincident", 5, 2, 0, 1),
    Sketcher.Constraint("Horizontal", 0),
    Sketcher.Constraint("Vertical", 1),
    Sketcher.Constraint("Horizontal", 2),
    Sketcher.Constraint("Vertical", 3),
    Sketcher.Constraint("Horizontal", 4),
    Sketcher.Constraint("Vertical", 5),
    Sketcher.Constraint("Coincident", 5, 2, -1, 1),
    Sketcher.Constraint("DistanceX", 0, 1, 0, 2, Q("1.187 in")),
    Sketcher.Constraint("DistanceX", 2, 2, 2, 1, Q("0.315 in")),
    Sketcher.Constraint("DistanceY", 1, 1, 1, 2, Q("0.289 in")),
    Sketcher.Constraint("DistanceY", 3, 2, 3, 1, Q("0.115 in")),
])
groove7 = body.newObject("PartDesign::Groove", "Groove006")
groove7.Profile = sketch16
groove7.ReferenceAxis = (sketch16, ["H_Axis"])
groove7.Angle = 360
doc.recompute()

datumline = body.newObject("PartDesign::Line", "DatumLine")
datumline.Placement = App.Placement(App.Vector(0, 0, 0), App.Rotation(App.Vector(0, 0, 1), App.Vector(0.923841935, 0, 0.382774188)))
linearpattern = body.newObject("PartDesign::LinearPattern", "LinearPattern")
linearpattern.Originals = [groove7]
linearpattern.Direction = (datumline, [""])
linearpattern.Mode = "offset"
linearpattern.Offset = 54.877786
linearpattern.Occurrences = 2
body.Tip = linearpattern
doc.recompute()

datumline2 = body.newObject("PartDesign::Line", "DatumLine001")
datumline2.Placement = App.Placement(App.Vector(0, 0, 0), App.Rotation(App.Vector(0, 0, 1), App.Vector(0.923841935, 0, -0.382774188)))
linearpattern2 = body.newObject("PartDesign::LinearPattern", "LinearPattern001")
linearpattern2.Originals = [groove7]
linearpattern2.Direction = (datumline2, [""])
linearpattern2.Mode = "offset"
linearpattern2.Offset = 54.877786
linearpattern2.Occurrences = 2
body.Tip = linearpattern2
doc.recompute()

datumline3 = body.newObject("PartDesign::Line", "DatumLine002")
datumline3.Placement = App.Placement(App.Vector(0, 0, 0), App.Rotation(App.Vector(0, 0, 1), App.Vector(0.382154394, 0, 0.92409849)))
linearpattern3 = body.newObject("PartDesign::LinearPattern", "LinearPattern002")
linearpattern3.Originals = [groove7]
linearpattern3.Direction = (datumline3, [""])
linearpattern3.Mode = "offset"
linearpattern3.Offset = 22.731127
linearpattern3.Occurrences = 2
body.Tip = linearpattern3
doc.recompute()

datumline4 = body.newObject("PartDesign::Line", "DatumLine003")
datumline4.Placement = App.Placement(App.Vector(0, 0, 0), App.Rotation(App.Vector(0, 0, 1), App.Vector(0.382154394, 0, -0.92409849)))
linearpattern4 = body.newObject("PartDesign::LinearPattern", "LinearPattern003")
linearpattern4.Originals = [groove7]
linearpattern4.Direction = (datumline4, [""])
linearpattern4.Mode = "offset"
linearpattern4.Offset = 22.731127
linearpattern4.Occurrences = 2
body.Tip = linearpattern4

sketch17 = body.newObject("Sketcher::SketchObject", "Sketch016")
sketch17.AttachmentSupport = (doc.getObject("XZ_Plane"), [""])
sketch17.MapMode = "FlatFace"
sketch17.AttachmentOffset = App.Placement(App.Vector(0, 0, 3.188 * 25.4), App.Rotation())
sketch17.addGeometry(Part.Circle(App.Vector(0, 0, 0), App.Vector(0, 0, 1), 11), False)
sketch17.addConstraint([
    Sketcher.Constraint("Coincident", 0, 3, -1, 1),
    Sketcher.Constraint("Diameter", 0, Q("0.895 in")),
])
pocket6 = body.newObject("PartDesign::Pocket", "Pocket005")
pocket6.Profile = sketch17
pocket6.Length = Q("0.06 in")

sketch18 = body.newObject("Sketcher::SketchObject", "Sketch017")
sketch18.Placement = App.Placement(App.Vector(-39.667137, 0, -16.430666), App.Rotation(App.Vector(-0.382683432, 0, 0.923879533), App.Vector(0, 1.000000001, 0), App.Vector(-0.923879533, 0, -0.382683432), "ZXY"))
sketch18.addGeometry([
    Part.LineSegment(App.Vector(8, 20, 0), App.Vector(0, 24, 0)),
    Part.LineSegment(App.Vector(0, 24, 0), App.Vector(-9, 19, 0)),
    Part.LineSegment(App.Vector(-9, 19, 0), App.Vector(-8, 9, 0)),
    Part.LineSegment(App.Vector(-8, 9, 0), App.Vector(0, 5, 0)),
    Part.LineSegment(App.Vector(0, 5, 0), App.Vector(9, 10, 0)),
    Part.LineSegment(App.Vector(9, 10, 0), App.Vector(8, 20, 0)),
], False)
sketch18.addConstraint([
    Sketcher.Constraint("Coincident", 0, 2, 1, 1),
    Sketcher.Constraint("Coincident", 1, 2, 2, 1),
    Sketcher.Constraint("Coincident", 2, 2, 3, 1),
    Sketcher.Constraint("Coincident", 3, 2, 4, 1),
    Sketcher.Constraint("Coincident", 4, 2, 5, 1),
    Sketcher.Constraint("Coincident", 5, 2, 0, 1),
    Sketcher.Constraint("Parallel", 0, 3),
    Sketcher.Constraint("Parallel", 1, 4),
    Sketcher.Constraint("Parallel", 2, 5),
    Sketcher.Constraint("Equal", 0, 1),
    Sketcher.Constraint("Equal", 1, 2),
    Sketcher.Constraint("Equal", 2, 3),
    Sketcher.Constraint("DistanceX", 1, 2, 4, 2, Q("17.193499 mm")),
    Sketcher.Constraint("DistanceX", 0, 2, -1, 1, Q("0.196921 mm")),
    Sketcher.Constraint("DistanceY", -1, 1, 0, 2, Q("24.316379 mm")),
    Sketcher.Constraint("DistanceX", 1, 2, -1, 1, Q("8.596749 mm")),
    Sketcher.Constraint("DistanceY", -1, 1, 1, 2, Q("19.239351 mm")),
    Sketcher.Constraint("DistanceX", 2, 2, -1, 1, Q("8.399829 mm")),
])
pad3 = body.newObject("PartDesign::Pad", "Pad002")
pad3.Profile = sketch18
pad3.Length = 7.471
doc.recompute()

fillet2 = body.newObject("PartDesign::Fillet", "Fillet001")
fillet2.Base = (pad3, edges_at(pad3, [
    (-46.408, 9.767, -9.918),
    (-46.333, 19.58, -10.1),
    (-43.043, 24.316, -18.042),
    (-39.828, 19.239, -25.803),
    (-39.904, 9.426, -25.621),
    (-43.194, 4.69, -17.678),
    (-49.822, 14.674, -11.438),
    (-48.139, 21.948, -15.5),
    (-44.887, 21.778, -23.352),
    (-43.317, 14.333, -27.141),
    (-45, 7.058, -23.079),
    (-48.252, 7.229, -15.228),
]))
fillet2.Radius = 2
doc.recompute()

polarpattern = body.newObject("PartDesign::PolarPattern", "PolarPattern")
polarpattern.Originals = [groove5]
polarpattern.Axis = (doc.getObject("Y_Axis"), [""])
polarpattern.Angle = 360
polarpattern.Occurrences = 6
body.Tip = polarpattern
body2 = doc.addObject("PartDesign::Body", "Body001")

sketch19 = body2.newObject("Sketcher::SketchObject", "Sketch018")
sketch19.AttachmentSupport = (doc.getObject("XY_Plane001"), [""])
sketch19.MapMode = "FlatFace"
sketch19.AttachmentOffset = App.Placement(App.Vector(0, 0, -0.466 * 25.4), App.Rotation())
sketch19.addGeometry(Part.Circle(App.Vector(-32.6, 0.5, 0), App.Vector(0, 0, 1), 1), False)
sketch19.addGeometry(Part.LineSegment(App.Vector(-28.6, 0.5, 0), App.Vector(-28.6, 10.5, 0)), True)
sketch19.addConstraint([
    Sketcher.Constraint("Vertical", 1),
    Sketcher.Constraint("Horizontal", 0, 3, 1, 1),
    Sketcher.Constraint("Diameter", 0, Q("2 mm")),
    Sketcher.Constraint("DistanceX", 1, 1, -1, 1, Q("1.125 in")),
    Sketcher.Constraint("DistanceY", 1, 1, 1, 2, Q("10 mm")),
    Sketcher.Constraint("DistanceX", 0, 3, -1, 1, Q("32.575 mm")),
    Sketcher.Constraint("DistanceY", -1, 1, 0, 3, Q("0.5 mm")),
])
revolution3 = body2.newObject("PartDesign::Revolution", "Revolution002")
revolution3.Profile = sketch19
revolution3.ReferenceAxis = (sketch19, ["Axis0"])
revolution3.Angle = 360
body3 = doc.addObject("PartDesign::Body", "Body002")
doc.recompute()

mirroring = doc.addObject("Part::Mirroring", "Mirroring")
mirroring.Source = body2
mirroring.Base = App.Vector(0, 0, 0)
mirroring.Normal = App.Vector(0, 0, 1)
body3.BaseFeature = mirroring
doc.recompute()
mirroring.Visibility = False

doc.recompute()
